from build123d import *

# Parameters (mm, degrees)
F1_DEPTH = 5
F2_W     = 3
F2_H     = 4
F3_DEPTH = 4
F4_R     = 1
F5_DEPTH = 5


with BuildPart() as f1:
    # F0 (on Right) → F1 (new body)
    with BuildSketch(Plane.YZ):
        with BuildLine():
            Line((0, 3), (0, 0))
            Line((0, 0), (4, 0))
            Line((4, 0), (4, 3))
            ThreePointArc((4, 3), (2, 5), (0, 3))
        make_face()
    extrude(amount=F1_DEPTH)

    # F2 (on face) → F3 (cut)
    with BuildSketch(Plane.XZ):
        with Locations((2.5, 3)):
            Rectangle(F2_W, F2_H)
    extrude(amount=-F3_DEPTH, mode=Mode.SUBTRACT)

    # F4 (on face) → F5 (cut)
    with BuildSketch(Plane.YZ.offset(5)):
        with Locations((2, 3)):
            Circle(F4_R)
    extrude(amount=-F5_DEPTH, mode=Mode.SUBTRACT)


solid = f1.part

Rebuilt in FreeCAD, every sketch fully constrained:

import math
import FreeCAD as App
import Part
import Sketcher
Q = App.Units.Quantity


def add_polygon(sketch, points):
    """Adds a closed chain of lines whose ends are joined by coincident constraints."""
    first, n = sketch.GeometryCount, len(points)
    for a, b in zip(points, points[1:] + points[:1]):
        sketch.addGeometry(Part.LineSegment(App.Vector(*a, 0), App.Vector(*b, 0)), False)
    for i in range(n):
        sketch.addConstraint(Sketcher.Constraint("Coincident", first + i, 2, first + (i + 1) % n, 1))

doc = App.newDocument("Part")
params = doc.addObject("Spreadsheet::Sheet", "Params")
for row, (alias, value) in enumerate([
    ("sketch1_radius", "2 mm"),
    ("sketch1_height", "3 mm"),
    ("pad1_length", "5 mm"),
    ("sketch2_width", "3 mm"),
    ("sketch2_height", "4 mm"),
    ("pocket1_length", "4 mm"),
    ("sketch3_diameter", "2 mm"),
    ("pocket2_length", "5 mm"),
], start=1):
    params.set(f"A{row}", alias)
    params.set(f"B{row}", "=" + value)
    params.setAlias(f"B{row}", alias)

body = doc.addObject("PartDesign::Body", "Body")

# Sketch on YZ plane
sketch1 = body.newObject("Sketcher::SketchObject", "Sketch")
sketch1.AttachmentSupport = (doc.getObject("YZ_Plane"), [""])
sketch1.MapMode = "FlatFace"
sketch1.addGeometry([
    Part.LineSegment(App.Vector(0, 3, 0), App.Vector(0, 0, 0)),
    Part.LineSegment(App.Vector(0, 0, 0), App.Vector(4, 0, 0)),
    Part.LineSegment(App.Vector(4, 0, 0), App.Vector(4, 3, 0)),
    Part.ArcOfCircle(Part.Circle(App.Vector(2, 3, 0), App.Vector(0, 0, 1), 2), math.radians(0), math.radians(180)),
], False)
sketch1.addConstraint([
    Sketcher.Constraint("Coincident", 0, 2, 1, 1),
    Sketcher.Constraint("Coincident", 1, 2, 2, 1),
    Sketcher.Constraint("Tangent", 2, 2, 3, 1),
    Sketcher.Constraint("Tangent", 3, 2, 0, 1),
    Sketcher.Constraint("Vertical", 0),
    Sketcher.Constraint("Horizontal", 1),
    Sketcher.Constraint("Vertical", 2),
    Sketcher.Constraint("Coincident", 0, 2, -1, 1),
    Sketcher.Constraint("Radius", 3, Q("2 mm")),
    Sketcher.Constraint("DistanceY", 0, 2, 0, 1, Q("3 mm")),
])
sketch1.setExpression("Constraints[8]", "Params.sketch1_radius")
sketch1.setExpression("Constraints[9]", "Params.sketch1_height")
pad1 = body.newObject("PartDesign::Pad", "Pad")
pad1.Profile = sketch1
pad1.setExpression("Length", "Params.pad1_length")

# Sketch on XZ plane
sketch2 = body.newObject("Sketcher::SketchObject", "Sketch001")
sketch2.AttachmentSupport = (doc.getObject("XZ_Plane"), [""])
sketch2.MapMode = "FlatFace"
add_polygon(sketch2, [(1, 5), (1, 1), (4, 1), (4, 5)])  # lines 0-3
sketch2.addConstraint([
    Sketcher.Constraint("Vertical", 0),
    Sketcher.Constraint("Horizontal", 1),
    Sketcher.Constraint("Vertical", 2),
    Sketcher.Constraint("Horizontal", 3),
    Sketcher.Constraint("DistanceX", 1, 1, 1, 2, Q("3 mm")),
    Sketcher.Constraint("DistanceY", 0, 2, 0, 1, Q("4 mm")),
    Sketcher.Constraint("DistanceX", -1, 1, 0, 2, Q("1 mm")),
    Sketcher.Constraint("DistanceY", -1, 1, 0, 2, Q("1 mm")),
])
sketch2.setExpression("Constraints[8]", "Params.sketch2_width")
sketch2.setExpression("Constraints[9]", "Params.sketch2_height")
pocket1 = body.newObject("PartDesign::Pocket", "Pocket")
pocket1.Profile = sketch2
pocket1.setExpression("Length", "Params.pocket1_length")

# Sketch on YZ plane
sketch3 = body.newObject("Sketcher::SketchObject", "Sketch002")
sketch3.AttachmentSupport = (doc.getObject("YZ_Plane"), [""])
sketch3.MapMode = "FlatFace"
sketch3.AttachmentOffset = App.Placement(App.Vector(0, 0, 5), App.Rotation())
sketch3.addGeometry(Part.Circle(App.Vector(2, 3, 0), App.Vector(0, 0, 1), 1), False)
sketch3.addConstraint([
    Sketcher.Constraint("Diameter", 0, Q("2 mm")),
    Sketcher.Constraint("DistanceX", -1, 1, 0, 3, Q("2 mm")),
    Sketcher.Constraint("DistanceY", -1, 1, 0, 3, Q("3 mm")),
])
sketch3.setExpression("Constraints[0]", "Params.sketch3_diameter")
pocket2 = body.newObject("PartDesign::Pocket", "Pocket001")
pocket2.Profile = sketch3
pocket2.setExpression("Length", "Params.pocket2_length")

doc.recompute()
